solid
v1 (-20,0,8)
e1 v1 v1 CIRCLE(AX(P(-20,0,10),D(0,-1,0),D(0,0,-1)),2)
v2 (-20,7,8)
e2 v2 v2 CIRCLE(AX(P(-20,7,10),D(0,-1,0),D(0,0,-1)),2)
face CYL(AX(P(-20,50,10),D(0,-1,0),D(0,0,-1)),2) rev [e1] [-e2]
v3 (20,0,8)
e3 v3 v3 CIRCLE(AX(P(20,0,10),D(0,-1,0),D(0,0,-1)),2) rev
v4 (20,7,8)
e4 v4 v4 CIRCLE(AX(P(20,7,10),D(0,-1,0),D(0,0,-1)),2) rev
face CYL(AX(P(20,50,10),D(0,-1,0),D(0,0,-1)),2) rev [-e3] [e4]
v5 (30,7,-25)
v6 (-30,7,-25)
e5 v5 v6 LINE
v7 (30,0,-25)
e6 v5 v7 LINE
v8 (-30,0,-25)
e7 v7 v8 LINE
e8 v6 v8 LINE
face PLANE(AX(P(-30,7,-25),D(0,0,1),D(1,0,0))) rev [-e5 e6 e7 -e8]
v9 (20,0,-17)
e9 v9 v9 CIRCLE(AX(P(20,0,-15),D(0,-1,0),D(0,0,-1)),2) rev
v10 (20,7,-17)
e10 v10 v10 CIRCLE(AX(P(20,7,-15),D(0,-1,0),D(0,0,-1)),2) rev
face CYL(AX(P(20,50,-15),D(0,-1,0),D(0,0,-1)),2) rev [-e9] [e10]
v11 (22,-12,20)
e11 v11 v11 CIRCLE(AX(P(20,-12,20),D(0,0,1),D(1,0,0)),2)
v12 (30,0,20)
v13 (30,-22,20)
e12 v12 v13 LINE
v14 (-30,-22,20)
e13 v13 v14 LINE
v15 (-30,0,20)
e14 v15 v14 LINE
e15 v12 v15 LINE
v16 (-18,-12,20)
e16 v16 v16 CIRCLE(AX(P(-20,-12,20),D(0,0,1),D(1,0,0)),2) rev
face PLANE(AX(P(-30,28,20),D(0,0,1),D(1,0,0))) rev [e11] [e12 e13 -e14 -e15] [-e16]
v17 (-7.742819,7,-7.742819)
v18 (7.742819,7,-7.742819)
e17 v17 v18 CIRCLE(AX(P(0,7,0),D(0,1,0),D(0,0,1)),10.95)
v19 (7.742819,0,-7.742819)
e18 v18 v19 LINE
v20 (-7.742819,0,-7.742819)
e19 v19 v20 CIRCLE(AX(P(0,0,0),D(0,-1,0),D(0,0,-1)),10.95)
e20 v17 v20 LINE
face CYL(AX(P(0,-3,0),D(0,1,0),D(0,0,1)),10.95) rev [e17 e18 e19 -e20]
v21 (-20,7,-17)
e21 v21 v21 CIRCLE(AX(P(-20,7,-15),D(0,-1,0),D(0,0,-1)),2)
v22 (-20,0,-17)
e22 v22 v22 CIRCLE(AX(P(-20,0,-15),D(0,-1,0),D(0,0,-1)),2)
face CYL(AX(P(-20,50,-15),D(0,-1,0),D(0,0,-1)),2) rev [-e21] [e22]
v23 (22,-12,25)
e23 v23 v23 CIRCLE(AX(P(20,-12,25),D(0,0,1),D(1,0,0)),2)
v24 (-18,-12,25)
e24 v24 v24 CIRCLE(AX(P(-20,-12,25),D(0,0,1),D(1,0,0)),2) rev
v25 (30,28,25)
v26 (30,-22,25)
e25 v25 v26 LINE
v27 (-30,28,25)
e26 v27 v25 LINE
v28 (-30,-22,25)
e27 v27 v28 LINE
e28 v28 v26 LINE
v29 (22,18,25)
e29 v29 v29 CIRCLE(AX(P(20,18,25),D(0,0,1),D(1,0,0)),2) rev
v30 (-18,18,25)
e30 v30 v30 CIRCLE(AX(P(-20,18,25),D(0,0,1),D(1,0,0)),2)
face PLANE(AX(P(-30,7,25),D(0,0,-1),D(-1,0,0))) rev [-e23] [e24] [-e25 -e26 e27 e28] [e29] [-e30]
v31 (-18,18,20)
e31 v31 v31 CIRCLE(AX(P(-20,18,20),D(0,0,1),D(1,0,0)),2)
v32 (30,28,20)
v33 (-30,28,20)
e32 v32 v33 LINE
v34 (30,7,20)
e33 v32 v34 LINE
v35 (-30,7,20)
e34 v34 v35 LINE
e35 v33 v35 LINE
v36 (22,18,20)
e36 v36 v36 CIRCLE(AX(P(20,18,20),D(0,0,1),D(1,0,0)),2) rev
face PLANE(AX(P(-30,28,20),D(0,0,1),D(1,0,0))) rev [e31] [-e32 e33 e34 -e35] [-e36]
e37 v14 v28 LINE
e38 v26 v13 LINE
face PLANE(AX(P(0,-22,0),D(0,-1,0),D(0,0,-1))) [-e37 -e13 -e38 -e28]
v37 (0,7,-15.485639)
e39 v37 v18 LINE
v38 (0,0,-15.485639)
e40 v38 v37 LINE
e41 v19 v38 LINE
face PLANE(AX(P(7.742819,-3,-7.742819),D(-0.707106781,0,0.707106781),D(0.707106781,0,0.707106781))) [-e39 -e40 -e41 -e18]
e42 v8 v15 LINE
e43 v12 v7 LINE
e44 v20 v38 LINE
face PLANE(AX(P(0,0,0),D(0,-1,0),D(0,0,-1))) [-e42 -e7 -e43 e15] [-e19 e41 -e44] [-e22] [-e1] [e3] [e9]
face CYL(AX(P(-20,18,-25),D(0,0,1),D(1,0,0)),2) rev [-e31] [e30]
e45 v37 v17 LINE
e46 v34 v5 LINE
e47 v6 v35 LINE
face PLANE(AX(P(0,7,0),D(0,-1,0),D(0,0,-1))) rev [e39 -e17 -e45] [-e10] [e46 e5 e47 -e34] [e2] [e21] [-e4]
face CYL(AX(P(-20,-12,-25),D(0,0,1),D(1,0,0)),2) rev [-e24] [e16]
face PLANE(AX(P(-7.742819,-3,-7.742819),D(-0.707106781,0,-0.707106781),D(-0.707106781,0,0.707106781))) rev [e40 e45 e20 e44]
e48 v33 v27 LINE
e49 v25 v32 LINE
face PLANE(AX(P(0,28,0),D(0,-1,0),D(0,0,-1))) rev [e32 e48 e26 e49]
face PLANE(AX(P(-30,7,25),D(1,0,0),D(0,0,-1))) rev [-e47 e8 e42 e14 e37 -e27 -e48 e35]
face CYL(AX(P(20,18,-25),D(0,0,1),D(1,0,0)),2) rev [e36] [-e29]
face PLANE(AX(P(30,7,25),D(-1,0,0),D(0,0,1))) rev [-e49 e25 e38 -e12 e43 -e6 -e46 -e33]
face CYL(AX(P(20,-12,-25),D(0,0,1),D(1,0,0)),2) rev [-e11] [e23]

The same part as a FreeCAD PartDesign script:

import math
import FreeCAD as App
import Part
import Sketcher
from FreeCAD import Vector

doc = App.newDocument("Part")
body = doc.addObject("PartDesign::Body", "Body")

sketch1 = doc.addObject("Sketcher::SketchObject", "Sketch")
body.addObject(sketch1)
sketch1.AttachmentSupport = (doc.XZ_Plane, [""])
sketch1.MapMode = "FlatFace"
sketch1.addGeometry([
    Part.LineSegment(Vector(-30, -25, 0), Vector(-30, 25, 0)),
    Part.LineSegment(Vector(-30, 25, 0), Vector(30, 25, 0)),
    Part.LineSegment(Vector(30, 25, 0), Vector(30, -25, 0)),
    Part.LineSegment(Vector(30, -25, 0), Vector(-30, -25, 0)),
    Part.Circle(Vector(0, 0, 0), Vector(0, 0, 1), 11),
], False)
sketch1.addConstraint([
    Sketcher.Constraint("Coincident", 0, 2, 1, 1),
    Sketcher.Constraint("Coincident", 1, 2, 2, 1),
    Sketcher.Constraint("Coincident", 2, 2, 3, 1),
    Sketcher.Constraint("Coincident", 3, 2, 0, 1),
    Sketcher.Constraint("Vertical", 0),
    Sketcher.Constraint("Horizontal", 1),
    Sketcher.Constraint("Vertical", 2),
    Sketcher.Constraint("Horizontal", 3),
    Sketcher.Constraint("Coincident", 4, 3, -1, 1),
    Sketcher.Constraint("Symmetric", 0, 2, 2, 2, -1, 1),
    Sketcher.Constraint("Diameter", 4, 21.7),
    Sketcher.Constraint("DistanceX", 1, 1, 1, 2, 60.0),
    Sketcher.Constraint("DistanceY", 0, 1, 0, 2, 50.0),
])
pad1 = doc.addObject("PartDesign::Pad", "Pad")
body.addObject(pad1)
pad1.Profile = sketch1
pad1.Length = 7
pad1.Reversed = True

sketch2 = doc.addObject("Sketcher::SketchObject", "Sketch001")
body.addObject(sketch2)
sketch2.AttachmentSupport = (doc.XZ_Plane, [""])
sketch2.MapMode = "FlatFace"
sketch2.AttachmentOffset = App.Placement(Vector(0, 0, -3), App.Rotation())
sketch2.addGeometry([
    Part.LineSegment(Vector(-30, 20, 0), Vector(-30, 25, 0)),
    Part.LineSegment(Vector(-30, 25, 0), Vector(30, 25, 0)),
    Part.LineSegment(Vector(30, 25, 0), Vector(30, 20, 0)),
    Part.LineSegment(Vector(30, 20, 0), Vector(-30, 20, 0)),
], False)
sketch2.addConstraint([
    Sketcher.Constraint("Coincident", 0, 2, 1, 1),
    Sketcher.Constraint("Coincident", 1, 2, 2, 1),
    Sketcher.Constraint("Coincident", 2, 2, 3, 1),
    Sketcher.Constraint("Coincident", 3, 2, 0, 1),
    Sketcher.Constraint("Vertical", 0),
    Sketcher.Constraint("Horizontal", 1),
    Sketcher.Constraint("Vertical", 2),
    Sketcher.Constraint("Horizontal", 3),
    Sketcher.Constraint("DistanceX", 1, 1, 1, 2, 60.0),
    Sketcher.Constraint("DistanceY", 0, 1, 0, 2, 5.0),
    Sketcher.Constraint("DistanceX", 0, 2, -1, 1, 30.0),
    Sketcher.Constraint("DistanceY", -1, 1, 0, 2, 25.0),
])
pad2 = doc.addObject("PartDesign::Pad", "Pad001")
body.addObject(pad2)
pad2.Profile = sketch2
pad2.Length = 50
pad2.Midplane = True

sketch3 = doc.addObject("Sketcher::SketchObject", "Sketch002")
body.addObject(sketch3)
sketch3.AttachmentSupport = (doc.XY_Plane, [""])
sketch3.MapMode = "FlatFace"
sketch3.AttachmentOffset = App.Placement(Vector(0, 0, 25), App.Rotation())
sketch3.addGeometry([
    Part.ArcOfCircle(Part.Circle(Vector(-20, 18, 0), Vector(0, 0, 1), 2), math.radians(0), math.radians(90)),
    Part.ArcOfCircle(Part.Circle(Vector(-20, 18, 0), Vector(0, 0, 1), 2), math.radians(90), math.radians(180)),
    Part.ArcOfCircle(Part.Circle(Vector(-20, 18, 0), Vector(0, 0, 1), 2), math.radians(180), math.radians(360)),
    Part.Circle(Vector(20, 18, 0), Vector(0, 0, 1), 2),
    Part.Circle(Vector(-20, -12, 0), Vector(0, 0, 1), 2),
    Part.Circle(Vector(20, -12, 0), Vector(0, 0, 1), 2),
], False)
sketch3.addConstraint([
    Sketcher.Constraint("Tangent", 0, 2, 1, 1),
    Sketcher.Constraint("Tangent", 1, 2, 2, 1),
    Sketcher.Constraint("Tangent", 2, 2, 0, 1),
    Sketcher.Constraint("Equal", 2, 3),
    Sketcher.Constraint("Equal", 3, 4),
    Sketcher.Constraint("Equal", 4, 5),
    Sketcher.Constraint("Symmetric", 0, 3, 3, 3, -2),
    Sketcher.Constraint("Symmetric", 4, 3, 5, 3, -2),
    Sketcher.Constraint("Horizontal", 3, 3, 1, 2),
    Sketcher.Constraint("Horizontal", 1, 2, 2, 2),
    Sketcher.Constraint("Vertical", 2, 3, 4, 3),
    Sketcher.Constraint("Vertical", 4, 3, 0, 2),
    Sketcher.Constraint("Diameter", 3, 4.0),
    Sketcher.Constraint("DistanceX", 0, 3, -1, 1, 20.0),
    Sketcher.Constraint("DistanceY", -1, 1, 0, 3, 18.0),
    Sketcher.Constraint("DistanceY", 4, 3, -1, 1, 12.0),
])
pocket1 = doc.addObject("PartDesign::Pocket", "Pocket")
body.addObject(pocket1)
pocket1.Profile = sketch3
pocket1.Length = 50

sketch4 = doc.addObject("Sketcher::SketchObject", "Sketch003")
body.addObject(sketch4)
sketch4.AttachmentSupport = (doc.XZ_Plane, [""])
sketch4.MapMode = "FlatFace"
sketch4.addGeometry([
    Part.ArcOfCircle(Part.Circle(Vector(-20, 10, 0), Vector(0, 0, 1), 2), math.radians(0), math.radians(90)),
    Part.ArcOfCircle(Part.Circle(Vector(-20, 10, 0), Vector(0, 0, 1), 2), math.radians(90), math.radians(180)),
    Part.ArcOfCircle(Part.Circle(Vector(-20, 10, 0), Vector(0, 0, 1), 2), math.radians(180), math.radians(360)),
    Part.Circle(Vector(20, 10, 0), Vector(0, 0, 1), 2),
    Part.Circle(Vector(20, -15, 0), Vector(0, 0, 1), 2),
    Part.Circle(Vector(-20, -15, 0), Vector(0, 0, 1), 2),
], False)
sketch4.addConstraint([
    Sketcher.Constraint("Tangent", 0, 2, 1, 1),
    Sketcher.Constraint("Tangent", 1, 2, 2, 1),
    Sketcher.Constraint("Tangent", 2, 2, 0, 1),
    Sketcher.Constraint("Equal", 2, 3),
    Sketcher.Constraint("Equal", 3, 4),
    Sketcher.Constraint("Equal", 4, 5),
    Sketcher.Constraint("Symmetric", 0, 3, 3, 3, -2),
    Sketcher.Constraint("Symmetric", 4, 3, 5, 3, -2),
    Sketcher.Constraint("Horizontal", 3, 3, 1, 2),
    Sketcher.Constraint("Horizontal", 1, 2, 2, 2),
    Sketcher.Constraint("Vertical", 3, 3, 4, 3),
    Sketcher.Constraint("Vertical", 5, 3, 0, 2),
    Sketcher.Constraint("Diameter", 3, 4.0),
    Sketcher.Constraint("DistanceX", 0, 3, -1, 1, 20.0),
    Sketcher.Constraint("DistanceY", -1, 1, 0, 3, 10.0),
    Sketcher.Constraint("DistanceY", 4, 3, -1, 1, 15.0),
])
pocket2 = doc.addObject("PartDesign::Pocket", "Pocket001")
body.addObject(pocket2)
pocket2.Profile = sketch4
pocket2.Length = 50

sketch5 = doc.addObject("Sketcher::SketchObject", "Sketch004")
body.addObject(sketch5)
sketch5.AttachmentSupport = (doc.XZ_Plane, [""])
sketch5.MapMode = "FlatFace"
sketch5.AttachmentOffset = App.Placement(Vector(0, 0, -7), App.Rotation())
sketch5.addGeometry(Part.Circle(Vector(0, 0, 0), Vector(0, 0, 1), 11), False)
sketch5.addConstraint([
    Sketcher.Constraint("Coincident", 0, 3, -1, 1),
    Sketcher.Constraint("Diameter", 0, 21.9),
])
pocket3 = doc.addObject("PartDesign::Pocket", "Pocket002")
body.addObject(pocket3)
pocket3.Profile = sketch5
pocket3.Length = 10
pocket3.Reversed = True

sketch6 = doc.addObject("Sketcher::SketchObject", "Sketch005")
body.addObject(sketch6)
sketch6.AttachmentSupport = (doc.XZ_Plane, [""])
sketch6.MapMode = "FlatFace"
sketch6.AttachmentOffset = App.Placement(Vector(0, 0, -7), App.Rotation())
sketch6.addGeometry([
    Part.LineSegment(Vector(8, -8, 0), Vector(0, -15, 0)),
    Part.LineSegment(Vector(0, -15, 0), Vector(-8, -8, 0)),
    Part.ArcOfCircle(Part.Circle(Vector(0, 0, 0), Vector(0, 0, 1), 11), math.radians(-45), math.radians(225)),
], False)
sketch6.addConstraint([
    Sketcher.Constraint("Coincident", 0, 2, 1, 1),
    Sketcher.Constraint("Tangent", 1, 2, 2, 2),
    Sketcher.Constraint("Tangent", 2, 1, 0, 1),
    Sketcher.Constraint("Coincident", 2, 3, -1, 1),
    Sketcher.Constraint("PointOnObject", 0, 2, -2),
    Sketcher.Constraint("Perpendicular", 0, 1),
    Sketcher.Constraint("Radius", 2, 10.95),
])
pocket4 = doc.addObject("PartDesign::Pocket", "Pocket003")
body.addObject(pocket4)
pocket4.Profile = sketch6
pocket4.Length = 10
pocket4.Reversed = True

doc.recompute()
